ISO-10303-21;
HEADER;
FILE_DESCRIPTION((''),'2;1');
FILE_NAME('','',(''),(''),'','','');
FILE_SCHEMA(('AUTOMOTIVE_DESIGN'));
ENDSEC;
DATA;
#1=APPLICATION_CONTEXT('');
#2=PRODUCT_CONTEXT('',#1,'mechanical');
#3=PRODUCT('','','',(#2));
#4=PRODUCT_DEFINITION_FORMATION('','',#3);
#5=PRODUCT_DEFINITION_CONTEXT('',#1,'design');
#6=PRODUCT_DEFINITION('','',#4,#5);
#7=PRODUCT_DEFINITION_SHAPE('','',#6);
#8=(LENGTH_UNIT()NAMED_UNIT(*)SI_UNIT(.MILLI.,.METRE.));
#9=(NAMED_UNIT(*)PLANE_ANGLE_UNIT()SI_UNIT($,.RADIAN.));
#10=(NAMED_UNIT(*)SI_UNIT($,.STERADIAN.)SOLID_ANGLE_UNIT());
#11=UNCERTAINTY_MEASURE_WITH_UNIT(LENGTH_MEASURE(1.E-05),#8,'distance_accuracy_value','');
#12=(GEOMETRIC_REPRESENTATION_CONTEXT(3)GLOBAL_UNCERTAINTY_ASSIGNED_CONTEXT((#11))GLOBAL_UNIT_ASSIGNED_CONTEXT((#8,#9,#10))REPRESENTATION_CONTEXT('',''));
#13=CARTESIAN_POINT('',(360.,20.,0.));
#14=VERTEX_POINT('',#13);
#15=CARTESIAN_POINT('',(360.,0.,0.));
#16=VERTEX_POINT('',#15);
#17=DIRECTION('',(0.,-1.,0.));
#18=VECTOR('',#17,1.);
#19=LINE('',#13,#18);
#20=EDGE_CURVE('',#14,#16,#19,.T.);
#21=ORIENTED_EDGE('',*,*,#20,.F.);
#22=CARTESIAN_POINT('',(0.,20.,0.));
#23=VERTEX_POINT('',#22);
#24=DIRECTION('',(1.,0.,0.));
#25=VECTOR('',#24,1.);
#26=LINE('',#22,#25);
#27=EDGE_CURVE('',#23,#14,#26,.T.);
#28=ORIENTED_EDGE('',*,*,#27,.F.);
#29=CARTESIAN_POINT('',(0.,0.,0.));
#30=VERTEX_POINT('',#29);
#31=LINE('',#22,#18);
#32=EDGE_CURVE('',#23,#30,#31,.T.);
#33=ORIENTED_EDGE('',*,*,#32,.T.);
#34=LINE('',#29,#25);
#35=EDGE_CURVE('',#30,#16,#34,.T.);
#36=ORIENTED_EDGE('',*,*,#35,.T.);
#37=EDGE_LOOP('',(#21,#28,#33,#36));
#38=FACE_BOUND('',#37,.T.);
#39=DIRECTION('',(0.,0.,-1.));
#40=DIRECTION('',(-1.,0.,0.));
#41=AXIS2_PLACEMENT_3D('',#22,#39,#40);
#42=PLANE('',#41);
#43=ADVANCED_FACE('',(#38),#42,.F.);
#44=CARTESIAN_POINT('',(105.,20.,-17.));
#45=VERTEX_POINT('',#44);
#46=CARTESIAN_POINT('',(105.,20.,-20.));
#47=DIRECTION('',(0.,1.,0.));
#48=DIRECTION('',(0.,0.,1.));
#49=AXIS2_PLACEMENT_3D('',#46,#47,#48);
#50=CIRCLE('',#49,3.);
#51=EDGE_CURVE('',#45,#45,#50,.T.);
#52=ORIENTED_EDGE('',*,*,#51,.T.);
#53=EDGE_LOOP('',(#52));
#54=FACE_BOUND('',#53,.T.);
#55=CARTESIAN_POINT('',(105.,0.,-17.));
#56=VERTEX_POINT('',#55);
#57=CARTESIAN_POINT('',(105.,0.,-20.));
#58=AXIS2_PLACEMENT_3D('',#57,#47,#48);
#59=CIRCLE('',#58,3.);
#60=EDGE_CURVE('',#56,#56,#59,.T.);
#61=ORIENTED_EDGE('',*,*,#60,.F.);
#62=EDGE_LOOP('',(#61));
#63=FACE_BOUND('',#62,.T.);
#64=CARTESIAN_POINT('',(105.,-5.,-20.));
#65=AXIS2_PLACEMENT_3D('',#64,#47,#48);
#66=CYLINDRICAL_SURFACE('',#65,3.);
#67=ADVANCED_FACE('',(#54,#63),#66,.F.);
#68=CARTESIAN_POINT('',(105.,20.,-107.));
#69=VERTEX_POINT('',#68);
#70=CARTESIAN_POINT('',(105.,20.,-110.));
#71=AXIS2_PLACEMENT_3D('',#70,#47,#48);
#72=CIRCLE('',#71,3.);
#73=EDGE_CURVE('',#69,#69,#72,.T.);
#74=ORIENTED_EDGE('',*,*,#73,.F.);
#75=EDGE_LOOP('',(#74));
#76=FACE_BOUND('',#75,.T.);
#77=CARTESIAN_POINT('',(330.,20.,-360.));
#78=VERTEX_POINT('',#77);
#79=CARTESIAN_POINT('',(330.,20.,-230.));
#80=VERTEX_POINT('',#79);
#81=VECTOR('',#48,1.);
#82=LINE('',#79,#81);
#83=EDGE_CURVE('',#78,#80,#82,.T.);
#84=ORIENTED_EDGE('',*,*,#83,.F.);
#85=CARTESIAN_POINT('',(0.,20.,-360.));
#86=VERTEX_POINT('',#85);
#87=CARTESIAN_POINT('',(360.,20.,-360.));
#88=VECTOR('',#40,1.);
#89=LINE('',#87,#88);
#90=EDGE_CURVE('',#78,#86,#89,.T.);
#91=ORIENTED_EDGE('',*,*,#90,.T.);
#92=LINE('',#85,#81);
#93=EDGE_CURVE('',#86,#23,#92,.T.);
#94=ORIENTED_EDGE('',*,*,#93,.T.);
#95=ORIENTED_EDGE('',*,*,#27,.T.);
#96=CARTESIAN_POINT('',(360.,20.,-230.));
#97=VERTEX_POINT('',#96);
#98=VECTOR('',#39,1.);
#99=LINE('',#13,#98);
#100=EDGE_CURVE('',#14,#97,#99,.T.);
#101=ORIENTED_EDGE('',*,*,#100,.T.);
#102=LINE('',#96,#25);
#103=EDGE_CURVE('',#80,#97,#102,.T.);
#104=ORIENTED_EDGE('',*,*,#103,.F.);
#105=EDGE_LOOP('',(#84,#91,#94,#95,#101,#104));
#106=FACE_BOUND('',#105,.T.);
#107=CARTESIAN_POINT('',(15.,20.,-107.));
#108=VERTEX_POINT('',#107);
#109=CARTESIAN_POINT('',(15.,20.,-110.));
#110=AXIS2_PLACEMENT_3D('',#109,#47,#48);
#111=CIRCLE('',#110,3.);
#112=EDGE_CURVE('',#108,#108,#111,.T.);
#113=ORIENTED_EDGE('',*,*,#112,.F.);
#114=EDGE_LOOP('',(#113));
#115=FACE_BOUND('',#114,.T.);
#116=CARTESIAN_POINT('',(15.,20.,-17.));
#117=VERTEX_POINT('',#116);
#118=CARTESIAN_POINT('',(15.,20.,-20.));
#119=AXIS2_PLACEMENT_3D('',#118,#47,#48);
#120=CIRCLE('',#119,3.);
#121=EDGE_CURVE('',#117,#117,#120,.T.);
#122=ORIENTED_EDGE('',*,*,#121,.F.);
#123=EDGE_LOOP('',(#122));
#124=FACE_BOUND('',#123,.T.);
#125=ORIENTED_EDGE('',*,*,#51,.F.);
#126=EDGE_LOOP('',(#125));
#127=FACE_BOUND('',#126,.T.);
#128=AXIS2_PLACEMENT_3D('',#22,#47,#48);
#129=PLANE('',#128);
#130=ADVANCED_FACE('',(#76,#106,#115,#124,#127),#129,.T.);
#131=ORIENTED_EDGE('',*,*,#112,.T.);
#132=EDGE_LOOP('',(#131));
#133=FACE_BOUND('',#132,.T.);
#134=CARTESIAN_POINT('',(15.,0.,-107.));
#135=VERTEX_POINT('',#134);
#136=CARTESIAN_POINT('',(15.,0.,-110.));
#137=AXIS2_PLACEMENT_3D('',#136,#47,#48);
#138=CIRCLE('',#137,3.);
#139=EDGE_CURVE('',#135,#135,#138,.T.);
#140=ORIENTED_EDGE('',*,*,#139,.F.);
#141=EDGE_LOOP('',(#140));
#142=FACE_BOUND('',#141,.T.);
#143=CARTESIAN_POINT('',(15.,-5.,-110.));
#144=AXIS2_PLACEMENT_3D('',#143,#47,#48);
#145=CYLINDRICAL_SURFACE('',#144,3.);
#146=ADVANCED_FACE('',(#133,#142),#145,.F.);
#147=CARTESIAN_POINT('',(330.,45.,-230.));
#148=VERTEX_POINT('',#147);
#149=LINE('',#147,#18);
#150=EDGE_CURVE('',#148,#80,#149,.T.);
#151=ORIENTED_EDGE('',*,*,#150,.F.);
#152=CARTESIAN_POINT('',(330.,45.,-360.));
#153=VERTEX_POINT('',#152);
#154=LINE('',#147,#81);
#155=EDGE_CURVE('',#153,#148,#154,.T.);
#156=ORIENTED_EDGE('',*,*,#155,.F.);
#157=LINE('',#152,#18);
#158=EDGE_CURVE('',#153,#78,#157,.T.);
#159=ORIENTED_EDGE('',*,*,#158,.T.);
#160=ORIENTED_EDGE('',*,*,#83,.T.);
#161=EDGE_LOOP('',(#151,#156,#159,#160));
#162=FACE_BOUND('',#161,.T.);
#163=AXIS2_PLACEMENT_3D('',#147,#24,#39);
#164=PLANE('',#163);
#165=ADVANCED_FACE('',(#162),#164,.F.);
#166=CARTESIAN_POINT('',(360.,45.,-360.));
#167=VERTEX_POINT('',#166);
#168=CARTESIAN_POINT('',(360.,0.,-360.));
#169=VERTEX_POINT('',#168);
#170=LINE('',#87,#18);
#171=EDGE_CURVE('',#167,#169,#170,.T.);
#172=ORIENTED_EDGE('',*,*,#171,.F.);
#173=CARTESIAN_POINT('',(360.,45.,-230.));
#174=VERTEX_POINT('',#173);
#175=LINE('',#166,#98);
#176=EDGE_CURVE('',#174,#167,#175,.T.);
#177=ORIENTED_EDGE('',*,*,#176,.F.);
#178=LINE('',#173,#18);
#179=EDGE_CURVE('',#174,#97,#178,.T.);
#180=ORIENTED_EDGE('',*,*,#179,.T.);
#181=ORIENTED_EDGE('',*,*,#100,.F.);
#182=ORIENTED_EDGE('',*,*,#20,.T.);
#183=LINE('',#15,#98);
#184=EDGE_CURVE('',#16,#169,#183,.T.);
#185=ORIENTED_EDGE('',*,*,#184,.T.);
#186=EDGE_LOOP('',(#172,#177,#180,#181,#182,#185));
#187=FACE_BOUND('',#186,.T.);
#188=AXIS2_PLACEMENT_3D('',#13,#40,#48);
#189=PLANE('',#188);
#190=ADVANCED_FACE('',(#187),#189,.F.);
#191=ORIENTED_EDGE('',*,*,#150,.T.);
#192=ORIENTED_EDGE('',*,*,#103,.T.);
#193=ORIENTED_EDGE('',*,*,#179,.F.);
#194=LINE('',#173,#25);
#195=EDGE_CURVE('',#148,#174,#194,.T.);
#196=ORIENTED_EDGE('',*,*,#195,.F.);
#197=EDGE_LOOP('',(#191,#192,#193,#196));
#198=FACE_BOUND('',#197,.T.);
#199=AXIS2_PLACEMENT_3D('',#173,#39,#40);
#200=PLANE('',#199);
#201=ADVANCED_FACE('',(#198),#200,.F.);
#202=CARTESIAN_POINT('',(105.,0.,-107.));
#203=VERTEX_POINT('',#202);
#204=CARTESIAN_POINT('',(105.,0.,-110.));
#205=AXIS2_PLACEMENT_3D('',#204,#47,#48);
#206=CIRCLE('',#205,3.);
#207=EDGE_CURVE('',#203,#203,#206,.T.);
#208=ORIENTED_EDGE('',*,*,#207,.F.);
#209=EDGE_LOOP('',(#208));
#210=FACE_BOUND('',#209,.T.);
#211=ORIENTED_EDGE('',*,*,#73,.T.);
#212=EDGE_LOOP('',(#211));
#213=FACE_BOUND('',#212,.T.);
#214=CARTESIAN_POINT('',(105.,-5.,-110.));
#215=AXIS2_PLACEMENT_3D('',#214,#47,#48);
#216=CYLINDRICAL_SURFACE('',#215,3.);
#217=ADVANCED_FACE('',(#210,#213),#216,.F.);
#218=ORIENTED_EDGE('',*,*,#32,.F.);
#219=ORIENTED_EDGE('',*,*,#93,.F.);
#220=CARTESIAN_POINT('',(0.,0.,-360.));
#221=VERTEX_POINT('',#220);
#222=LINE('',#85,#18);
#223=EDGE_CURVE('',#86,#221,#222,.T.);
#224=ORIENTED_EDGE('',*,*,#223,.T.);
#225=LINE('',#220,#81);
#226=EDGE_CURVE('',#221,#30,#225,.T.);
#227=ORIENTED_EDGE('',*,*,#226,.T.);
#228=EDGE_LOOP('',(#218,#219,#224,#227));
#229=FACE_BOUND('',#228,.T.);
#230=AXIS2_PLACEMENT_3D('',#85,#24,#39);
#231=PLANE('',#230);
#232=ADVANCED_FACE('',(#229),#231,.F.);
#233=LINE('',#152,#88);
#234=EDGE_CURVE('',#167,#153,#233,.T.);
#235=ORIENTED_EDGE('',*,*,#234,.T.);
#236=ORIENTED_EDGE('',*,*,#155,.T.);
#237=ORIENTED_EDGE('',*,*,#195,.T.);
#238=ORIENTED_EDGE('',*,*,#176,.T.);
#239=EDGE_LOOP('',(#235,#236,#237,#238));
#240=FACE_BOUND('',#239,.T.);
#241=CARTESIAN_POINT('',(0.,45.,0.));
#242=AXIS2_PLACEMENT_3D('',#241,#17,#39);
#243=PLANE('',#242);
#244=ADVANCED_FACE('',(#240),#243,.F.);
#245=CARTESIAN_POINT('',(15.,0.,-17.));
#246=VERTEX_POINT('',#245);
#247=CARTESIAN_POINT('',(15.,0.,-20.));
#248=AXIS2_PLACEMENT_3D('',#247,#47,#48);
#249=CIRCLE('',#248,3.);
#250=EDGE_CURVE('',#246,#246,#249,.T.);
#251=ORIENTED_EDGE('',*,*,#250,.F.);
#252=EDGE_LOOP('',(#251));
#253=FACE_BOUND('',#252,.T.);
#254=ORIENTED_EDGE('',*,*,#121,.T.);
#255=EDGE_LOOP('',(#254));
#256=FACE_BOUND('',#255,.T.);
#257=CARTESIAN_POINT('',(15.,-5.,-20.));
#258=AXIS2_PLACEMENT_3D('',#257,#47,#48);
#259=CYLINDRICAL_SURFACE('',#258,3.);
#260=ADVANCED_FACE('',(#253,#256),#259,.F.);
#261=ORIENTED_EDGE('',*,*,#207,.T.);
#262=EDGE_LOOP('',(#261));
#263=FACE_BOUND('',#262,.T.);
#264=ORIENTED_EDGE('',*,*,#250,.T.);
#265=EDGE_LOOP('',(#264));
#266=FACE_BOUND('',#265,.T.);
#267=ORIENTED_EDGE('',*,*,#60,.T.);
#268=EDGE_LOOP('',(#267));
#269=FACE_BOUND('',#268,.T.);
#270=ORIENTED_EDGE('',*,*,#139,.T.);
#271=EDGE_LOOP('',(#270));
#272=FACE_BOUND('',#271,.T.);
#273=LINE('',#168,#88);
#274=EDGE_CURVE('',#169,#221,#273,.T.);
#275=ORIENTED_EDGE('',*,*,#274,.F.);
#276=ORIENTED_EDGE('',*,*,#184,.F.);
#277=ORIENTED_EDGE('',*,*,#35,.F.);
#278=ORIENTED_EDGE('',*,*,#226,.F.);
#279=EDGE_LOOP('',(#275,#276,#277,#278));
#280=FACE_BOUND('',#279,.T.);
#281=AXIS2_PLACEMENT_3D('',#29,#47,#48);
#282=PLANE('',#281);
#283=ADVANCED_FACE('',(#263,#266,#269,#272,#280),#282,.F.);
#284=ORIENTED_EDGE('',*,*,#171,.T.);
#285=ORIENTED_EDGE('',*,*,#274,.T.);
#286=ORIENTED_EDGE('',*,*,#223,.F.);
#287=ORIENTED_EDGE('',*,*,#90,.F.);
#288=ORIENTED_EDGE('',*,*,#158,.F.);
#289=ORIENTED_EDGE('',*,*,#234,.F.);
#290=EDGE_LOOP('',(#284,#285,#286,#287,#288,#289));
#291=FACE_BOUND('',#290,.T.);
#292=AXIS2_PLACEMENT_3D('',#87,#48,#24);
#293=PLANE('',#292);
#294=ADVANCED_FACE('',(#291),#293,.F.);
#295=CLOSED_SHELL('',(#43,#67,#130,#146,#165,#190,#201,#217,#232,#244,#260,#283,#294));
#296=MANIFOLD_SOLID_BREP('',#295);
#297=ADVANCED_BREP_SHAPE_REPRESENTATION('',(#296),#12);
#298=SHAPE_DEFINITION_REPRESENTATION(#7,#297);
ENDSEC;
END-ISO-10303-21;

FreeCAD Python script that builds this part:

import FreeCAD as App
import Part
import Sketcher
Q = App.Units.Quantity

doc = App.newDocument("Part")
body = doc.addObject("PartDesign::Body", "Body")

# Sketch on XZ plane
sketch1 = body.newObject("Sketcher::SketchObject", "Sketch")
sketch1.AttachmentSupport = (doc.getObject("XZ_Plane"), [""])
sketch1.MapMode = "FlatFace"
sketch1.addGeometry(Part.LineSegment(App.Vector(0, -360, 0), App.Vector(0, 0, 0)), False)
sketch1.addGeometry(Part.LineSegment(App.Vector(0, 0, 0), App.Vector(360, 0, 0)), False)
sketch1.addGeometry(Part.LineSegment(App.Vector(360, 0, 0), App.Vector(360, -360, 0)), False)
sketch1.addGeometry(Part.LineSegment(App.Vector(360, -360, 0), App.Vector(0, -360, 0)), False)
sketch1.addConstraint(Sketcher.Constraint("Coincident", 0, 2, 1, 1))
sketch1.addConstraint(Sketcher.Constraint("Coincident", 1, 2, 2, 1))
sketch1.addConstraint(Sketcher.Constraint("Coincident", 2, 2, 3, 1))
sketch1.addConstraint(Sketcher.Constraint("Coincident", 3, 2, 0, 1))
sketch1.addConstraint(Sketcher.Constraint("Vertical", 0))
sketch1.addConstraint(Sketcher.Constraint("Horizontal", 1))
sketch1.addConstraint(Sketcher.Constraint("Vertical", 2))
sketch1.addConstraint(Sketcher.Constraint("Horizontal", 3))
sketch1.addConstraint(Sketcher.Constraint("Coincident", 0, 2, -1, 1))
sketch1.addConstraint(Sketcher.Constraint("Equal", 3, 0))
sketch1.addConstraint(Sketcher.Constraint("DistanceX", 1, 1, 1, 2, Q("360 mm")))
pad1 = body.newObject("PartDesign::Pad", "Pad")
pad1.Profile = sketch1
pad1.Length = 20
pad1.Reversed = True

# Sketch on XZ plane
sketch2 = body.newObject("Sketcher::SketchObject", "Sketch001")
sketch2.AttachmentSupport = (doc.getObject("XZ_Plane"), [""])
sketch2.MapMode = "FlatFace"
sketch2.AttachmentOffset = App.Placement(App.Vector(0, 0, -20), App.Rotation())
sketch2.addGeometry(Part.LineSegment(App.Vector(330, -360, 0), App.Vector(330, -230, 0)), False)
sketch2.addGeometry(Part.LineSegment(App.Vector(330, -230, 0), App.Vector(360, -230, 0)), False)
sketch2.addGeometry(Part.LineSegment(App.Vector(360, -230, 0), App.Vector(360, -360, 0)), False)
sketch2.addGeometry(Part.LineSegment(App.Vector(360, -360, 0), App.Vector(330, -360, 0)), False)
sketch2.addConstraint(Sketcher.Constraint("Coincident", 0, 2, 1, 1))
sketch2.addConstraint(Sketcher.Constraint("Coincident", 1, 2, 2, 1))
sketch2.addConstraint(Sketcher.Constraint("Coincident", 2, 2, 3, 1))
sketch2.addConstraint(Sketcher.Constraint("Coincident", 3, 2, 0, 1))
sketch2.addConstraint(Sketcher.Constraint("Vertical", 0))
sketch2.addConstraint(Sketcher.Constraint("Horizontal", 1))
sketch2.addConstraint(Sketcher.Constraint("Vertical", 2))
sketch2.addConstraint(Sketcher.Constraint("Horizontal", 3))
sketch2.addConstraint(Sketcher.Constraint("DistanceX", 1, 1, 1, 2, Q("30 mm")))
sketch2.addConstraint(Sketcher.Constraint("DistanceY", 0, 1, 0, 2, Q("130 mm")))
sketch2.addConstraint(Sketcher.Constraint("DistanceX", -1, 1, 0, 2, Q("330 mm")))
sketch2.addConstraint(Sketcher.Constraint("DistanceY", 0, 2, -1, 1, Q("230 mm")))
pad2 = body.newObject("PartDesign::Pad", "Pad001")
pad2.Profile = sketch2
pad2.Length = 25
pad2.Reversed = True

# Sketch on XZ plane
sketch3 = body.newObject("Sketcher::SketchObject", "Sketch002")
sketch3.AttachmentSupport = (doc.getObject("XZ_Plane"), [""])
sketch3.MapMode = "FlatFace"
sketch3.AttachmentOffset = App.Placement(App.Vector(0, 0, -20), App.Rotation())
sketch3.addGeometry(Part.Circle(App.Vector(15, -110, 0), App.Vector(0, 0, 1), 3), False)
sketch3.addGeometry(Part.Circle(App.Vector(105, -110, 0), App.Vector(0, 0, 1), 3), False)
sketch3.addGeometry(Part.Circle(App.Vector(15, -20, 0), App.Vector(0, 0, 1), 3), False)
sketch3.addGeometry(Part.Circle(App.Vector(105, -20, 0), App.Vector(0, 0, 1), 3), False)
sketch3.addConstraint(Sketcher.Constraint("Equal", 0, 1))
sketch3.addConstraint(Sketcher.Constraint("Equal", 1, 2))
sketch3.addConstraint(Sketcher.Constraint("Equal", 2, 3))
sketch3.addConstraint(Sketcher.Constraint("Horizontal", 0, 3, 1, 3))
sketch3.addConstraint(Sketcher.Constraint("Horizontal", 2, 3, 3, 3))
sketch3.addConstraint(Sketcher.Constraint("Vertical", 0, 3, 2, 3))
sketch3.addConstraint(Sketcher.Constraint("Vertical", 1, 3, 3, 3))
sketch3.addConstraint(Sketcher.Constraint("Diameter", 0, Q("6 mm")))
sketch3.addConstraint(Sketcher.Constraint("DistanceX", -1, 1, 0, 3, Q("15 mm")))
sketch3.addConstraint(Sketcher.Constraint("DistanceY", 0, 3, -1, 1, Q("110 mm")))
sketch3.addConstraint(Sketcher.Constraint("DistanceX", -1, 1, 1, 3, Q("105 mm")))
sketch3.addConstraint(Sketcher.Constraint("DistanceY", 2, 3, -1, 1, Q("20 mm")))
pocket1 = body.newObject("PartDesign::Pocket", "Pocket")
pocket1.Profile = sketch3
pocket1.Length = 25
pocket1.Reversed = True

doc.recompute()
